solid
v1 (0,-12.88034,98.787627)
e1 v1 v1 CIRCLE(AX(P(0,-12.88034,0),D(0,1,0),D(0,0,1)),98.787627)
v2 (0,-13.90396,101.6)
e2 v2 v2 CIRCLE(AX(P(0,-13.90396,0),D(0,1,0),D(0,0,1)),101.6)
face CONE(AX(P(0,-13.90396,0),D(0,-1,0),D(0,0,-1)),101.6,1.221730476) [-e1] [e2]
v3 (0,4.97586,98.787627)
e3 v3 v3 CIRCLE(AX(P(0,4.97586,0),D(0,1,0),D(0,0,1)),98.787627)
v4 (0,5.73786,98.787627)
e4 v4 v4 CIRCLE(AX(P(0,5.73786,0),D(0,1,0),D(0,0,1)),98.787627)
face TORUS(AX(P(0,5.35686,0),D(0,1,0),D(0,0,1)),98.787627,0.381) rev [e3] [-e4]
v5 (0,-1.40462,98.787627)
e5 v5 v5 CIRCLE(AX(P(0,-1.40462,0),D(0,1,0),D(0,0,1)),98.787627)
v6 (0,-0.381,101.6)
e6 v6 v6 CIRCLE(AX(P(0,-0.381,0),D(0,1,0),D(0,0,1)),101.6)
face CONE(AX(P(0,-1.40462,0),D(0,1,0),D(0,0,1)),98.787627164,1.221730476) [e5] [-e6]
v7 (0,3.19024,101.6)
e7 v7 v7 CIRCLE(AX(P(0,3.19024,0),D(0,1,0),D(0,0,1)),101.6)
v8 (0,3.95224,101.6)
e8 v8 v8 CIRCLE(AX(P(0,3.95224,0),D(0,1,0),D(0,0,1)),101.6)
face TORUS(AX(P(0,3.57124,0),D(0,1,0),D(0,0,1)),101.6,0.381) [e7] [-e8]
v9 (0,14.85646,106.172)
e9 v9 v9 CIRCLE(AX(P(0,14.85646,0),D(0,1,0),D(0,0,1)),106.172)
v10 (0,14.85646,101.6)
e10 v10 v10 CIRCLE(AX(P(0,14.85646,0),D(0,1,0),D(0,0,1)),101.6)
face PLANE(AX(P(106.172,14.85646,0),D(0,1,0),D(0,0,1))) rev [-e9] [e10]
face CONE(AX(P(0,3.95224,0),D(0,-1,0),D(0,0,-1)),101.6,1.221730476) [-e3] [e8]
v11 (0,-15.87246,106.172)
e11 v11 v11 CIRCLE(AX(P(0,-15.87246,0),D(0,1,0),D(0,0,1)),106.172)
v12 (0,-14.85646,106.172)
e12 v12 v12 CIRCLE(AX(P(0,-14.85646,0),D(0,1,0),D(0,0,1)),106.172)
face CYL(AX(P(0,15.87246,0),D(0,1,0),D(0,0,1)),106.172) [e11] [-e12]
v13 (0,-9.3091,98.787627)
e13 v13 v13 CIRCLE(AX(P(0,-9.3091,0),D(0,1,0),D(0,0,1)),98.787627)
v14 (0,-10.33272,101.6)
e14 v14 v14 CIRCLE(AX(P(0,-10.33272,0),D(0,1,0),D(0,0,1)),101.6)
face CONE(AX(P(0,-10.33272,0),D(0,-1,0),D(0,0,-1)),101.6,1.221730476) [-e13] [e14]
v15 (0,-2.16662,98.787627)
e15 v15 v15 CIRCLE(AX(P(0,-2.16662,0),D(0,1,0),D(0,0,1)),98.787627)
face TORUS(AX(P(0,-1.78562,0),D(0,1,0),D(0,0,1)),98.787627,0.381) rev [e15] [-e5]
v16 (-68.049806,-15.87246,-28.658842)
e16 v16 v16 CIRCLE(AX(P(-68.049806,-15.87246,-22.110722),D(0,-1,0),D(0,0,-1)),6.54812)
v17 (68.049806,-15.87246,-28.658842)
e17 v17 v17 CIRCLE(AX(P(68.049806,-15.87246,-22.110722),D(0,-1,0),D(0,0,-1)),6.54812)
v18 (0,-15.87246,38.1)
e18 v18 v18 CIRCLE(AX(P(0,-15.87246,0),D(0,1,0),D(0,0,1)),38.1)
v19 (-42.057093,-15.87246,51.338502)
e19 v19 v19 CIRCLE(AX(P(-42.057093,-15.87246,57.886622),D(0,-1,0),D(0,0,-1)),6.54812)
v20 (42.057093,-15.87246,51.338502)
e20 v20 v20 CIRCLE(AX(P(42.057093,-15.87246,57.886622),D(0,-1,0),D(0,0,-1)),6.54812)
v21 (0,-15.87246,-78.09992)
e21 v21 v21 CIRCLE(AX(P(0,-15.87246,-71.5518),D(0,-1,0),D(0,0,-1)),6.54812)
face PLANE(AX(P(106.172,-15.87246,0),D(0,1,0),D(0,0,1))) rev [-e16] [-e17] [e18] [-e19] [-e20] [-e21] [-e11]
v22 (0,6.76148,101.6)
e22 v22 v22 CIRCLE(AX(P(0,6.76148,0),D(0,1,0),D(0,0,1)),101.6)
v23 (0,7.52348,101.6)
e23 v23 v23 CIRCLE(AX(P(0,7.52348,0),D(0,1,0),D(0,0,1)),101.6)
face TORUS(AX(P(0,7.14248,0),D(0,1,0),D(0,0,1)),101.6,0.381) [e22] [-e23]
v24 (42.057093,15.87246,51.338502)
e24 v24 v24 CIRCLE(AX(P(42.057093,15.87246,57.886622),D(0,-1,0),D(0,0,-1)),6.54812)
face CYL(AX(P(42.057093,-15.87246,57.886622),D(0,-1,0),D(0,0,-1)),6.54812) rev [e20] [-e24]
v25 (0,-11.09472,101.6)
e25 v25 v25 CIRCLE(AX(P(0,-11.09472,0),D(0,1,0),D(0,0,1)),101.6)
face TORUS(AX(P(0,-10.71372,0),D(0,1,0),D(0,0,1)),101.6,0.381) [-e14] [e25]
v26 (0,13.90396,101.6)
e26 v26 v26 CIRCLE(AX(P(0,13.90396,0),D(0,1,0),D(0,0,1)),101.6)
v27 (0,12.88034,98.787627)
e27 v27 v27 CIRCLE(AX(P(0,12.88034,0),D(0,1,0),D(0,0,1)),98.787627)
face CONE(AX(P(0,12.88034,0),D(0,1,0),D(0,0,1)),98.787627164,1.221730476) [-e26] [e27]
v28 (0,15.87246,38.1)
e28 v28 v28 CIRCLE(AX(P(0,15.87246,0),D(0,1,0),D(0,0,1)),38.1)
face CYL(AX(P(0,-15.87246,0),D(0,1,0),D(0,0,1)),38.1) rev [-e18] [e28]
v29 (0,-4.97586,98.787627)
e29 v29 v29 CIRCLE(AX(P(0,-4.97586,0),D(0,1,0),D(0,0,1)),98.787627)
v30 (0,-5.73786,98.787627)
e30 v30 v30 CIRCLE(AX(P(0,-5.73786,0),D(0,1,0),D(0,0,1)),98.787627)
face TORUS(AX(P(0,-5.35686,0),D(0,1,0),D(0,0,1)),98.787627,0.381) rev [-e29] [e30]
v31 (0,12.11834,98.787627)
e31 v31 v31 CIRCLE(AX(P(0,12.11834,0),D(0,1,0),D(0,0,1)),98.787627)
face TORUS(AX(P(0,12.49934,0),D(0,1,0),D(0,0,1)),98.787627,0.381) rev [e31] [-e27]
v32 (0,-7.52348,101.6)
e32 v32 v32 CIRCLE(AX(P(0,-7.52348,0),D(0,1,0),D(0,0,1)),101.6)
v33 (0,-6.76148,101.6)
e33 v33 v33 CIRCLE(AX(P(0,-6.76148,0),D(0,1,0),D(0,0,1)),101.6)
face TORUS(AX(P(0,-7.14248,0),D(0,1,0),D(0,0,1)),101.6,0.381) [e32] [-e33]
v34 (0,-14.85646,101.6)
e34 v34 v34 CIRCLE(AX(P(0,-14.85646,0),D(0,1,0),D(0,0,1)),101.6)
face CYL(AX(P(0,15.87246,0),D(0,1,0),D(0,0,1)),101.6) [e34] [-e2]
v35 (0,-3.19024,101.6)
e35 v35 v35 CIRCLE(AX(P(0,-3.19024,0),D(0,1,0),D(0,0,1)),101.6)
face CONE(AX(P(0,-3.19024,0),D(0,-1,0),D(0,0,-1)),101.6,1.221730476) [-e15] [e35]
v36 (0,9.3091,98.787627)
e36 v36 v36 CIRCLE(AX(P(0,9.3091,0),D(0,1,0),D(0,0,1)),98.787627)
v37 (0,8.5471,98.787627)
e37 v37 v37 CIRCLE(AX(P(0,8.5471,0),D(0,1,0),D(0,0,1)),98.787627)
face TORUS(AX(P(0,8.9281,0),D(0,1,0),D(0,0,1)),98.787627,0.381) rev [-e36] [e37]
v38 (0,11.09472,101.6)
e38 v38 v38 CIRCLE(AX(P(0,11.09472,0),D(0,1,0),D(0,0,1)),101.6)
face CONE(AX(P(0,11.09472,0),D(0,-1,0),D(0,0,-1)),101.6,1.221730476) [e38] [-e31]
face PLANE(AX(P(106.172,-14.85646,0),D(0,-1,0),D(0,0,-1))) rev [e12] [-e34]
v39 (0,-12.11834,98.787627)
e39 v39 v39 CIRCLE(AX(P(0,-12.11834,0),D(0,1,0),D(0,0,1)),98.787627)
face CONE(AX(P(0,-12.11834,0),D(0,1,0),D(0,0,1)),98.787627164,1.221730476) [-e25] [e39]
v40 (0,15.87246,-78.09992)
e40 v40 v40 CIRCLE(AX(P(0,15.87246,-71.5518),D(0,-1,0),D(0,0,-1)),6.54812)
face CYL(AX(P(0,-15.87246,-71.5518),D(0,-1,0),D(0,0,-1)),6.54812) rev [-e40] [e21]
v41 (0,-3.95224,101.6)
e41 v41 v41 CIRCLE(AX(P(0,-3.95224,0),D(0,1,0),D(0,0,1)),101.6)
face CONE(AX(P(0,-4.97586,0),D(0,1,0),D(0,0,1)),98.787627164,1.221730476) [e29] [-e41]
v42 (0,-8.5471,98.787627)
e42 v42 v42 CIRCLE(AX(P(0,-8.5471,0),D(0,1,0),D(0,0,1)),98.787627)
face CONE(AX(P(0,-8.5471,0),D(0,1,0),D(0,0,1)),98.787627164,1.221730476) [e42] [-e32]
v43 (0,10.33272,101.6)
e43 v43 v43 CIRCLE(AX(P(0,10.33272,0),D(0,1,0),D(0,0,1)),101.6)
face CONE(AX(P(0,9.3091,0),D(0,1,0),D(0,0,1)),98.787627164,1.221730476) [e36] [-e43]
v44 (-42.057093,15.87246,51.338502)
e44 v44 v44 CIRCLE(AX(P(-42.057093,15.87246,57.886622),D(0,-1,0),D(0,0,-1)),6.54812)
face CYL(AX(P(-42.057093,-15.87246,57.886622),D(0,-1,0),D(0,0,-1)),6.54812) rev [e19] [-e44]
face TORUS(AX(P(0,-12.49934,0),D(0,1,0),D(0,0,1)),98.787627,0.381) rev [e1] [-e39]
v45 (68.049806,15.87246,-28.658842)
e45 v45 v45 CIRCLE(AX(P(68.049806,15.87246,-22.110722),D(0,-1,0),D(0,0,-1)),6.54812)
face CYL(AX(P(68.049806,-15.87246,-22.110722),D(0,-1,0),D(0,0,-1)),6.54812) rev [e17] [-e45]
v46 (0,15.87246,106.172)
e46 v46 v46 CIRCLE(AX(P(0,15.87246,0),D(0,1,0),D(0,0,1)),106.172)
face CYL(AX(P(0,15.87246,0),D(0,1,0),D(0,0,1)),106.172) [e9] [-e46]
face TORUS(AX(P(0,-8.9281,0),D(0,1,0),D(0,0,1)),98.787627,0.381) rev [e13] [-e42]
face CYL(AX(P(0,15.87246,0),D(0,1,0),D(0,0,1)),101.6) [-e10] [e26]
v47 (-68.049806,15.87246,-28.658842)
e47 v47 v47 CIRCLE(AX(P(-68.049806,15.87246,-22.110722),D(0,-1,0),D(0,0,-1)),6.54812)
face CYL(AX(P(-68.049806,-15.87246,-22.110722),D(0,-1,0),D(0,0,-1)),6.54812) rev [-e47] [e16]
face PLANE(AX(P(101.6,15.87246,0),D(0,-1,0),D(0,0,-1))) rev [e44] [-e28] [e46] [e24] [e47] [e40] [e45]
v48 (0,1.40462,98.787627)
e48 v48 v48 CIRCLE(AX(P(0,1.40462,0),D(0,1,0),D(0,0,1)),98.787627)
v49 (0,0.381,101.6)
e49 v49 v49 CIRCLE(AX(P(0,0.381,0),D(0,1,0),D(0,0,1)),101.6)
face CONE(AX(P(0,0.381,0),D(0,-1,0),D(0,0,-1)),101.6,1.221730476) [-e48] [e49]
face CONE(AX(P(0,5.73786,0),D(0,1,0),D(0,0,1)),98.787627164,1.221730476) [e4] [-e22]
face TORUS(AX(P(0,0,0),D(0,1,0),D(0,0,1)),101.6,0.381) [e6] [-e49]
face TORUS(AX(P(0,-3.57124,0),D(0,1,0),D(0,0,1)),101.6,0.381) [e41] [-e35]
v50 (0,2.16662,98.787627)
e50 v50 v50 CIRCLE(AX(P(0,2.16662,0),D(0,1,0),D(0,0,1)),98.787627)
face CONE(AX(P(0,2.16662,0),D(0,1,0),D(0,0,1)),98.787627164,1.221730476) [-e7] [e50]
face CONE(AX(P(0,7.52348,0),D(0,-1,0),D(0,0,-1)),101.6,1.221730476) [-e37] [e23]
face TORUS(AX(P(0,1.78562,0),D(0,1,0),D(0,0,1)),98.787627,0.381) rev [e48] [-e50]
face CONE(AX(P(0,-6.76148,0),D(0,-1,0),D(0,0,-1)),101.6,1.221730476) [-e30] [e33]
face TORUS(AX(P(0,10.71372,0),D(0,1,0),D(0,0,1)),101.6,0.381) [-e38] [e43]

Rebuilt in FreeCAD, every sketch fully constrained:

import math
import FreeCAD as App
import Part
import Sketcher
Q = App.Units.Quantity

doc = App.newDocument("Part")
body = doc.addObject("PartDesign::Body", "Body")

# Sketch on XY plane
sketch1 = doc.addObject("Sketcher::SketchObject", "Sketch")
body.addObject(sketch1)
sketch1.AttachmentSupport = (doc.XY_Plane, [""])
sketch1.MapMode = "FlatFace"
sketch1.addGeometry([
    Part.LineSegment(App.Vector(101.6, 13.9, 0), App.Vector(101.6, 14.86, 0)),  # 0
    Part.LineSegment(App.Vector(101.6, 14.86, 0), App.Vector(106.17, 14.86, 0)),  # 1
    Part.LineSegment(App.Vector(106.17, 14.86, 0), App.Vector(106.17, 15.87, 0)),  # 2
    Part.LineSegment(App.Vector(106.17, 15.87, 0), App.Vector(0, 15.87, 0)),  # 3
    Part.LineSegment(App.Vector(0, 15.87, 0), App.Vector(0, -15.87, 0)),  # 4
    Part.LineSegment(App.Vector(0, -15.87, 0), App.Vector(106.17, -15.87, 0)),  # 5
    Part.LineSegment(App.Vector(106.17, -15.87, 0), App.Vector(106.17, -14.86, 0)),  # 6
    Part.LineSegment(App.Vector(106.17, -14.86, 0), App.Vector(101.6, -14.86, 0)),  # 7
    Part.LineSegment(App.Vector(101.6, -14.86, 0), App.Vector(101.6, -13.9, 0)),  # 8
    Part.LineSegment(App.Vector(101.6, -13.9, 0), App.Vector(98.79, -12.88, 0)),  # 9
    Part.ArcOfCircle(Part.Circle(App.Vector(98.79, -12.5, 0), App.Vector(0, 0, 1), 0.38), math.radians(90), math.radians(270)),  # 10
    Part.LineSegment(App.Vector(98.79, -12.12, 0), App.Vector(101.6, -11.09, 0)),  # 11
    Part.ArcOfCircle(Part.Circle(App.Vector(101.6, -10.71, 0), App.Vector(0, 0, 1), 0.38), math.radians(-90), math.radians(90)),  # 12
    Part.LineSegment(App.Vector(101.6, -10.33, 0), App.Vector(98.79, -9.31, 0)),  # 13
    Part.ArcOfCircle(Part.Circle(App.Vector(98.79, -8.93, 0), App.Vector(0, 0, 1), 0.38), math.radians(90), math.radians(270)),  # 14
    Part.LineSegment(App.Vector(98.79, -8.55, 0), App.Vector(101.6, -7.52, 0)),  # 15
    Part.ArcOfCircle(Part.Circle(App.Vector(101.6, -7.14, 0), App.Vector(0, 0, 1), 0.38), math.radians(-90), math.radians(90)),  # 16
    Part.LineSegment(App.Vector(101.6, -6.76, 0), App.Vector(98.79, -5.74, 0)),  # 17
    Part.ArcOfCircle(Part.Circle(App.Vector(98.79, -5.36, 0), App.Vector(0, 0, 1), 0.38), math.radians(90), math.radians(270)),  # 18
    Part.LineSegment(App.Vector(98.79, -4.98, 0), App.Vector(101.6, -3.95, 0)),  # 19
    Part.ArcOfCircle(Part.Circle(App.Vector(101.6, -3.57, 0), App.Vector(0, 0, 1), 0.38), math.radians(-90), math.radians(90)),  # 20
    Part.LineSegment(App.Vector(101.6, -3.19, 0), App.Vector(98.79, -2.17, 0)),  # 21
    Part.ArcOfCircle(Part.Circle(App.Vector(98.79, -1.79, 0), App.Vector(0, 0, 1), 0.38), math.radians(90), math.radians(270)),  # 22
    Part.LineSegment(App.Vector(98.79, -1.4, 0), App.Vector(101.6, -0.38, 0)),  # 23
    Part.ArcOfCircle(Part.Circle(App.Vector(101.6, 0, 0), App.Vector(0, 0, 1), 0.38), math.radians(-90), math.radians(90)),  # 24
    Part.LineSegment(App.Vector(101.6, 0.38, 0), App.Vector(98.79, 1.4, 0)),  # 25
    Part.ArcOfCircle(Part.Circle(App.Vector(98.79, 1.79, 0), App.Vector(0, 0, 1), 0.38), math.radians(90), math.radians(270)),  # 26
    Part.LineSegment(App.Vector(98.79, 2.17, 0), App.Vector(101.6, 3.19, 0)),  # 27
    Part.ArcOfCircle(Part.Circle(App.Vector(101.6, 3.57, 0), App.Vector(0, 0, 1), 0.38), math.radians(-90), math.radians(90)),  # 28
    Part.LineSegment(App.Vector(101.6, 3.95, 0), App.Vector(98.79, 4.98, 0)),  # 29
    Part.ArcOfCircle(Part.Circle(App.Vector(98.79, 5.36, 0), App.Vector(0, 0, 1), 0.38), math.radians(90), math.radians(270)),  # 30
    Part.LineSegment(App.Vector(98.79, 5.74, 0), App.Vector(101.6, 6.76, 0)),  # 31
    Part.ArcOfCircle(Part.Circle(App.Vector(101.6, 7.14, 0), App.Vector(0, 0, 1), 0.38), math.radians(-90), math.radians(90)),  # 32
    Part.LineSegment(App.Vector(101.6, 7.52, 0), App.Vector(98.79, 8.55, 0)),  # 33
    Part.ArcOfCircle(Part.Circle(App.Vector(98.79, 8.93, 0), App.Vector(0, 0, 1), 0.38), math.radians(90), math.radians(270)),  # 34
    Part.LineSegment(App.Vector(98.79, 9.31, 0), App.Vector(101.6, 10.33, 0)),  # 35
    Part.ArcOfCircle(Part.Circle(App.Vector(101.6, 10.71, 0), App.Vector(0, 0, 1), 0.38), math.radians(-90), math.radians(90)),  # 36
    Part.LineSegment(App.Vector(101.6, 11.09, 0), App.Vector(98.79, 12.12, 0)),  # 37
    Part.ArcOfCircle(Part.Circle(App.Vector(98.79, 12.5, 0), App.Vector(0, 0, 1), 0.38), math.radians(90), math.radians(270)),  # 38
    Part.LineSegment(App.Vector(98.79, 12.88, 0), App.Vector(101.6, 13.9, 0)),  # 39
], False)
sketch1.addConstraint([
    Sketcher.Constraint("Coincident", 0, 2, 1, 1),
    Sketcher.Constraint("Coincident", 1, 2, 2, 1),
    Sketcher.Constraint("Coincident", 2, 2, 3, 1),
    Sketcher.Constraint("Coincident", 3, 2, 4, 1),
    Sketcher.Constraint("Coincident", 4, 2, 5, 1),
    Sketcher.Constraint("Coincident", 5, 2, 6, 1),
    Sketcher.Constraint("Coincident", 6, 2, 7, 1),
    Sketcher.Constraint("Coincident", 7, 2, 8, 1),
    Sketcher.Constraint("Coincident", 8, 2, 9, 1),
    Sketcher.Constraint("Coincident", 9, 2, 10, 2),
    Sketcher.Constraint("Coincident", 10, 1, 11, 1),
    Sketcher.Constraint("Coincident", 11, 2, 12, 1),
    Sketcher.Constraint("Coincident", 12, 2, 13, 1),
    Sketcher.Constraint("Coincident", 13, 2, 14, 2),
    Sketcher.Constraint("Coincident", 14, 1, 15, 1),
    Sketcher.Constraint("Coincident", 15, 2, 16, 1),
    Sketcher.Constraint("Coincident", 16, 2, 17, 1),
    Sketcher.Constraint("Coincident", 17, 2, 18, 2),
    Sketcher.Constraint("Coincident", 18, 1, 19, 1),
    Sketcher.Constraint("Coincident", 19, 2, 20, 1),
    Sketcher.Constraint("Coincident", 20, 2, 21, 1),
    Sketcher.Constraint("Coincident", 21, 2, 22, 2),
    Sketcher.Constraint("Coincident", 22, 1, 23, 1),
    Sketcher.Constraint("Coincident", 23, 2, 24, 1),
    Sketcher.Constraint("Coincident", 24, 2, 25, 1),
    Sketcher.Constraint("Coincident", 25, 2, 26, 2),
    Sketcher.Constraint("Coincident", 26, 1, 27, 1),
    Sketcher.Constraint("Coincident", 27, 2, 28, 1),
    Sketcher.Constraint("Coincident", 28, 2, 29, 1),
    Sketcher.Constraint("Coincident", 29, 2, 30, 2),
    Sketcher.Constraint("Coincident", 30, 1, 31, 1),
    Sketcher.Constraint("Coincident", 31, 2, 32, 1),
    Sketcher.Constraint("Coincident", 32, 2, 33, 1),
    Sketcher.Constraint("Coincident", 33, 2, 34, 2),
    Sketcher.Constraint("Coincident", 34, 1, 35, 1),
    Sketcher.Constraint("Coincident", 35, 2, 36, 1),
    Sketcher.Constraint("Coincident", 36, 2, 37, 1),
    Sketcher.Constraint("Coincident", 37, 2, 38, 2),
    Sketcher.Constraint("Coincident", 38, 1, 39, 1),
    Sketcher.Constraint("Coincident", 39, 2, 0, 1),
    Sketcher.Constraint("Vertical", 0),
    Sketcher.Constraint("Horizontal", 1),
    Sketcher.Constraint("Vertical", 2),
    Sketcher.Constraint("Horizontal", 3),
    Sketcher.Constraint("Vertical", 4),
    Sketcher.Constraint("Horizontal", 5),
    Sketcher.Constraint("Vertical", 6),
    Sketcher.Constraint("Horizontal", 7),
    Sketcher.Constraint("Vertical", 8),
    Sketcher.Constraint("Equal", 10, 12),
    Sketcher.Constraint("Equal", 12, 14),
    Sketcher.Constraint("Equal", 14, 16),
    Sketcher.Constraint("Equal", 16, 18),
    Sketcher.Constraint("Equal", 18, 20),
    Sketcher.Constraint("Equal", 20, 22),
    Sketcher.Constraint("Equal", 22, 24),
    Sketcher.Constraint("Equal", 24, 26),
    Sketcher.Constraint("Equal", 26, 28),
    Sketcher.Constraint("Equal", 28, 30),
    Sketcher.Constraint("Equal", 30, 32),
    Sketcher.Constraint("Equal", 32, 34),
    Sketcher.Constraint("Equal", 34, 36),
    Sketcher.Constraint("Equal", 36, 38),
    Sketcher.Constraint("Symmetric", 3, 2, 4, 2, -1, 1),
    Sketcher.Constraint("Symmetric", 22, 3, 26, 3, -1),
    Sketcher.Constraint("Symmetric", 20, 3, 28, 3, -1),
    Sketcher.Constraint("Symmetric", 18, 3, 30, 3, -1),
    Sketcher.Constraint("Symmetric", 16, 3, 32, 3, -1),
    Sketcher.Constraint("Symmetric", 14, 3, 34, 3, -1),
    Sketcher.Constraint("Symmetric", 12, 3, 36, 3, -1),
    Sketcher.Constraint("Symmetric", 10, 3, 38, 3, -1),
    Sketcher.Constraint("Symmetric", 1, 2, 6, 2, -1),
    Sketcher.Constraint("Symmetric", 23, 2, 24, 2, -1),
    Sketcher.Constraint("Symmetric", 8, 2, 39, 2, -1),
    Sketcher.Constraint("Parallel", 9, 13),
    Sketcher.Constraint("Parallel", 11, 15),
    Sketcher.Constraint("Parallel", 13, 17),
    Sketcher.Constraint("Parallel", 15, 19),
    Sketcher.Constraint("Parallel", 17, 21),
    Sketcher.Constraint("Parallel", 19, 23),
    Sketcher.Constraint("Parallel", 21, 25),
    Sketcher.Constraint("Parallel", 23, 27),
    Sketcher.Constraint("Parallel", 25, 29),
    Sketcher.Constraint("Parallel", 27, 31),
    Sketcher.Constraint("Parallel", 29, 33),
    Sketcher.Constraint("Parallel", 31, 35),
    Sketcher.Constraint("Parallel", 33, 37),
    Sketcher.Constraint("Parallel", 35, 39),
    Sketcher.Constraint("Vertical", 10, 3, 14, 3),
    Sketcher.Constraint("Vertical", 12, 3, 16, 3),
    Sketcher.Constraint("Vertical", 14, 3, 18, 3),
    Sketcher.Constraint("Vertical", 16, 3, 20, 3),
    Sketcher.Constraint("Vertical", 18, 3, 22, 3),
    Sketcher.Constraint("Vertical", 20, 3, 24, 3),
    Sketcher.Constraint("Vertical", 36, 3, 0, 2),
    Sketcher.Constraint("Vertical", 38, 3, 9, 2),
    Sketcher.Constraint("Vertical", 9, 2, 10, 1),
    Sketcher.Constraint("Vertical", 8, 2, 11, 2),
    Sketcher.Constraint("Vertical", 11, 2, 12, 2),
    Sketcher.Constraint("Vertical", 10, 1, 13, 2),
    Sketcher.Constraint("Vertical", 13, 2, 14, 1),
    Sketcher.Constraint("Vertical", 12, 2, 15, 2),
    Sketcher.Constraint("Vertical", 15, 2, 16, 2),
    Sketcher.Constraint("Vertical", 14, 1, 17, 2),
    Sketcher.Constraint("Vertical", 17, 2, 18, 1),
    Sketcher.Constraint("Vertical", 16, 2, 19, 2),
    Sketcher.Constraint("Vertical", 19, 2, 20, 2),
    Sketcher.Constraint("Vertical", 18, 1, 21, 2),
    Sketcher.Constraint("Vertical", 21, 2, 22, 1),
    Sketcher.Constraint("Vertical", 20, 2, 23, 2),
    Sketcher.Constraint("Vertical", 22, 1, 25, 2),
    Sketcher.Constraint("Vertical", 25, 2, 26, 1),
    Sketcher.Constraint("Vertical", 27, 2, 28, 2),
    Sketcher.Constraint("Vertical", 29, 2, 30, 1),
    Sketcher.Constraint("Vertical", 31, 2, 32, 2),
    Sketcher.Constraint("Vertical", 33, 2, 34, 1),
    Sketcher.Constraint("Vertical", 35, 2, 36, 2),
    Sketcher.Constraint("DistanceX", -1, 1, 12, 3, Q("4 in")),
    Sketcher.Constraint("Angle", 9, Q("160 deg")),
    Sketcher.Constraint("Radius", 10, Q("0.015 in")),
    Sketcher.Constraint("DistanceX", 1, 1, 1, 2, Q("0.18 in")),
    Sketcher.Constraint("DistanceY", 2, 1, 2, 2, Q("0.04 in")),
    Sketcher.Constraint("DistanceY", 0, 1, 0, 2, Q("0.0375 in")),
    Sketcher.Constraint("DistanceY", 4, 2, 4, 1, Q("1.2498 in")),
])
revolution = doc.addObject("PartDesign::Revolution", "Revolution")
body.addObject(revolution)
revolution.Profile = sketch1
revolution.ReferenceAxis = (sketch1, ["V_Axis"])
revolution.Angle = 360

# Sketch on XZ plane
sketch2 = doc.addObject("Sketcher::SketchObject", "Sketch001")
body.addObject(sketch2)
sketch2.AttachmentSupport = (doc.XZ_Plane, [""])
sketch2.MapMode = "FlatFace"
sketch2.AttachmentOffset = App.Placement(App.Vector(0, 0, -0.6249 * 25.4), App.Rotation())
sketch2.addGeometry(Part.Circle(App.Vector(0, 0, 0), App.Vector(0, 0, 1), 38), False)
sketch2.addConstraint([
    Sketcher.Constraint("Coincident", 0, 3, -1, 1),
    Sketcher.Constraint("Diameter", 0, Q("3 in")),
])
pocket1 = doc.addObject("PartDesign::Pocket", "Pocket")
body.addObject(pocket1)
pocket1.Profile = sketch2
pocket1.Type = "ThroughAll"
pocket1.Reversed = True

# Sketch on XZ plane
sketch3 = doc.addObject("Sketcher::SketchObject", "Sketch002")
body.addObject(sketch3)
sketch3.AttachmentSupport = (doc.XZ_Plane, [""])
sketch3.MapMode = "FlatFace"
sketch3.AttachmentOffset = App.Placement(App.Vector(0, 0, 0.6249 * 25.4), App.Rotation())
sketch3.addGeometry(Part.Circle(App.Vector(0, -72, 0), App.Vector(0, 0, 1), 7), False)
sketch3.addConstraint([
    Sketcher.Constraint("PointOnObject", 0, 3, -2),
    Sketcher.Constraint("Diameter", 0, Q("0.5156 in")),
    Sketcher.Constraint("DistanceY", 0, 3, -1, 1, Q("2.817 in")),
])
doc.recompute()
hole = doc.addObject("PartDesign::Hole", "Hole")
body.addObject(hole)
hole.Profile = sketch3
hole.ThreadType = "None"
hole.Diameter = Q("0.5156 in")
hole.DepthType = "ThroughAll"
doc.recompute()

polarpattern = doc.addObject("PartDesign::PolarPattern", "PolarPattern")
body.addObject(polarpattern)
polarpattern.Originals = [hole]
polarpattern.Axis = (doc.Y_Axis, [""])
polarpattern.Angle = 360
polarpattern.Occurrences = 5
body.Tip = polarpattern

doc.recompute()
